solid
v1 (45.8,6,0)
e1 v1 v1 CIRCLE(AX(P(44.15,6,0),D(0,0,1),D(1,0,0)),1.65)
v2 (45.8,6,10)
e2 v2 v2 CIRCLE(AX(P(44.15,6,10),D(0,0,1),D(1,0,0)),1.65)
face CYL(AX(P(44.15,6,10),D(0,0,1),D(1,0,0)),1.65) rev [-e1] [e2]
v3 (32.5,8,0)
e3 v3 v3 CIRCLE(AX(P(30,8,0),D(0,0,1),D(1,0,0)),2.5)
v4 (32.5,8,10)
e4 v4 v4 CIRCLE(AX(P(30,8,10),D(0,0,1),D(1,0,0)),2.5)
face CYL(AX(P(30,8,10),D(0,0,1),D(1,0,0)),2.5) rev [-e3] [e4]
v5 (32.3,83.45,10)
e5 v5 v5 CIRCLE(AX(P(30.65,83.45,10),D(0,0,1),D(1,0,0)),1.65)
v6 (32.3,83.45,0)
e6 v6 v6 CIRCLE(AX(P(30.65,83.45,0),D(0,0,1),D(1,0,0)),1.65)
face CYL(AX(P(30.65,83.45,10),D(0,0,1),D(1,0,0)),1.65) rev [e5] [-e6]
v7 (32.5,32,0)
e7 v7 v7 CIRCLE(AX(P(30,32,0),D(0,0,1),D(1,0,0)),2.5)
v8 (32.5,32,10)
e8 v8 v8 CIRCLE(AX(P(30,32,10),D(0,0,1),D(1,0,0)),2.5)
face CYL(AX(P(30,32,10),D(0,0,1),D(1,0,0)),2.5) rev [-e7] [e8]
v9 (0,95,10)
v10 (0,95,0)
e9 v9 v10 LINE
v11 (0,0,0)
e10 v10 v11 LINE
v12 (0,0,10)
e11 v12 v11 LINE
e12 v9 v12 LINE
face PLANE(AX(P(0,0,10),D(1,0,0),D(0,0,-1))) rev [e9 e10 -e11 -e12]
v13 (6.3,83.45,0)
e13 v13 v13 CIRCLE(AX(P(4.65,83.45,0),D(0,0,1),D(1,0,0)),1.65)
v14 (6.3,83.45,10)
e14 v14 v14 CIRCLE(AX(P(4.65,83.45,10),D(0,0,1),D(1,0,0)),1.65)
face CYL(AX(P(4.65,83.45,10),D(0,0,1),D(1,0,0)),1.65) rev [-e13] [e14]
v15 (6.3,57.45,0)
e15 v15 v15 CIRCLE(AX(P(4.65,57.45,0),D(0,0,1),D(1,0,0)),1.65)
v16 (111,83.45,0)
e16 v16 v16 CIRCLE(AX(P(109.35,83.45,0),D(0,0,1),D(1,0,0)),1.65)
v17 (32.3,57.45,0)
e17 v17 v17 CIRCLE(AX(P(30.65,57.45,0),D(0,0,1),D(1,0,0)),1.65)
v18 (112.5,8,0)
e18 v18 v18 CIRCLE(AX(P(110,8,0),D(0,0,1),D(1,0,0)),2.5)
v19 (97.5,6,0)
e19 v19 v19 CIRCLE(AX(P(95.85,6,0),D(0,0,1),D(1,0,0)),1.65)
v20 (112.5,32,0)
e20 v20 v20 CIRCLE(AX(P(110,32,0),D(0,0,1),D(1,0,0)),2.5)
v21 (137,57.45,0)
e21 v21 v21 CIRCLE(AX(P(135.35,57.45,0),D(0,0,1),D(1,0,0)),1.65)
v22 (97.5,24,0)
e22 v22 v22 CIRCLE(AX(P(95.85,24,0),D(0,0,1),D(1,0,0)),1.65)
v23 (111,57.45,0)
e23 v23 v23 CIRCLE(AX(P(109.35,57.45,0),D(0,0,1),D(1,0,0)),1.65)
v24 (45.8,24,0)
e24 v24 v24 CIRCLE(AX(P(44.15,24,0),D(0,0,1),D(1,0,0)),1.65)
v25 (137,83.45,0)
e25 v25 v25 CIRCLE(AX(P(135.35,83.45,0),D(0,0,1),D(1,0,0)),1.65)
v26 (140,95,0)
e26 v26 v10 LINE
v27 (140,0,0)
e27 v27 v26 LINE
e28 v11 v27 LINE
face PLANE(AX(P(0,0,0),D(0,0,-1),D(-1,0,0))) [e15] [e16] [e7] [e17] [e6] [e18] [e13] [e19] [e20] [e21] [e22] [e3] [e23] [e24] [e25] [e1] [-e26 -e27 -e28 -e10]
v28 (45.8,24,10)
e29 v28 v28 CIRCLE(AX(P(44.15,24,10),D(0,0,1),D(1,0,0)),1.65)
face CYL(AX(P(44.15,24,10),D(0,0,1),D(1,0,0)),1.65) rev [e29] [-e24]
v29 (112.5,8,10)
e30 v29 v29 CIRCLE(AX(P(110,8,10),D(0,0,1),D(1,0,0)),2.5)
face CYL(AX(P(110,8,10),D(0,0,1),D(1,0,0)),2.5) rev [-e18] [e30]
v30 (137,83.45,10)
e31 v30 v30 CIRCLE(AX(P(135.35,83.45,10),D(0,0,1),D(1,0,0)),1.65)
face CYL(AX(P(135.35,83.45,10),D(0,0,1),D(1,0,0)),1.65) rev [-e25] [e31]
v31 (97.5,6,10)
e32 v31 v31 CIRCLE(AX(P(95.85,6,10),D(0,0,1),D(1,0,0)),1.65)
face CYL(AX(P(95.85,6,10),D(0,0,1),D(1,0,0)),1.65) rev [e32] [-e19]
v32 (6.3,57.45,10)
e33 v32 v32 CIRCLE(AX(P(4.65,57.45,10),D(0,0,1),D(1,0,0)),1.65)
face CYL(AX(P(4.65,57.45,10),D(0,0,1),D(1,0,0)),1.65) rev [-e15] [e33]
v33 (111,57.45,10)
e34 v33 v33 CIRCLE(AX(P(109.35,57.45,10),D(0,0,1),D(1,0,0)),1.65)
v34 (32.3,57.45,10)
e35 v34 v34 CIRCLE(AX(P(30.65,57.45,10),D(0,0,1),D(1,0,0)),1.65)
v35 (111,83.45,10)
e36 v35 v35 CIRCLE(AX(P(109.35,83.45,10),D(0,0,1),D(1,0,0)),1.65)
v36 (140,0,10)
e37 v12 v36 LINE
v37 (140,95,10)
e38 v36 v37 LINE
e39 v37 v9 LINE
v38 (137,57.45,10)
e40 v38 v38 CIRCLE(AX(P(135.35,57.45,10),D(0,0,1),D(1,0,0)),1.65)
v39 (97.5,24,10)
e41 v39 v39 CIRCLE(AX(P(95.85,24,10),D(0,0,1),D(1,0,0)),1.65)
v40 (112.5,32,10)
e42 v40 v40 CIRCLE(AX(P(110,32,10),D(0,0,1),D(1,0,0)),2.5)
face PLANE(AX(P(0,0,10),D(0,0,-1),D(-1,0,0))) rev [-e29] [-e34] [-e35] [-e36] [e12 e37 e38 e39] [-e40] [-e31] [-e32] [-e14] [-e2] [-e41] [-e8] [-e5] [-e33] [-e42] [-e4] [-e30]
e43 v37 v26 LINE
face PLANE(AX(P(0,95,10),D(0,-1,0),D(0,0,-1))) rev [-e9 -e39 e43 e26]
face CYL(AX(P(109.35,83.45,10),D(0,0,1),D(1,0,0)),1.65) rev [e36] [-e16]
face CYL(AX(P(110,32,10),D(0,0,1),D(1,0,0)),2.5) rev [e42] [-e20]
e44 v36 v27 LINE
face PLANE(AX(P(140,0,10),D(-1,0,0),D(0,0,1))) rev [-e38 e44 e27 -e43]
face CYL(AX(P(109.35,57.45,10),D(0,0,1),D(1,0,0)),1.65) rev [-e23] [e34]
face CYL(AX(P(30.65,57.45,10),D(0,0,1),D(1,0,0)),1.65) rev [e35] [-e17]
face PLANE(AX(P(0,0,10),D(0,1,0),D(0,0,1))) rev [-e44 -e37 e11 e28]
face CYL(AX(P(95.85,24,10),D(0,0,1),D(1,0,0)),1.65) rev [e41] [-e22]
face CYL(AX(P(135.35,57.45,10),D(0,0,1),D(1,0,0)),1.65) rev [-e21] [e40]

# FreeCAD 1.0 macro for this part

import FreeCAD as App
import Part
import Sketcher

V = App.Vector
Q = App.Units.Quantity


def add_polygon(sketch, points):
    """Adds a closed chain of lines whose ends are joined by coincident constraints."""
    first, n = sketch.GeometryCount, len(points)
    for a, b in zip(points, points[1:] + points[:1]):
        sketch.addGeometry(Part.LineSegment(App.Vector(*a, 0), App.Vector(*b, 0)), False)
    for i in range(n):
        sketch.addConstraint(Sketcher.Constraint("Coincident", first + i, 2, first + (i + 1) % n, 1))

doc = App.newDocument("Part")
body = doc.addObject("PartDesign::Body", "Body")

# Sketch on XY plane
sketch1 = body.newObject("Sketcher::SketchObject", "Sketch")
sketch1.AttachmentSupport = (doc.getObject("XY_Plane"), [""])
sketch1.MapMode = "FlatFace"
add_polygon(sketch1, [(0, 95), (0, 0), (140, 0), (140, 95)])  # lines 0-3
sketch1.addConstraint([
    Sketcher.Constraint("Vertical", 0),
    Sketcher.Constraint("Horizontal", 1),
    Sketcher.Constraint("Vertical", 2),
    Sketcher.Constraint("Horizontal", 3),
    Sketcher.Constraint("Coincident", 0, 2, -1, 1),
    Sketcher.Constraint("DistanceX", 1, 1, 1, 2, Q("140 mm")),
    Sketcher.Constraint("DistanceY", 0, 2, 0, 1, Q("95 mm")),
])
pad1 = body.newObject("PartDesign::Pad", "Pad")
pad1.Profile = sketch1
pad1.Length = 10

# Sketch on XY plane
sketch2 = body.newObject("Sketcher::SketchObject", "Sketch001")
sketch2.AttachmentSupport = (doc.getObject("XY_Plane"), [""])
sketch2.MapMode = "FlatFace"
sketch2.AttachmentOffset = App.Placement(V(0, 0, 10), App.Rotation())
sketch2.addGeometry([
    Part.Circle(V(4.7, 83.5, 0), V(0, 0, 1), 1.6),  # 0
    Part.Circle(V(4.7, 57.5, 0), V(0, 0, 1), 1.6),  # 1
    Part.Circle(V(30.6, 57.5, 0), V(0, 0, 1), 1.6),  # 2
    Part.Circle(V(30.6, 83.5, 0), V(0, 0, 1), 1.6),  # 3
    Part.Circle(V(109.3, 83.5, 0), V(0, 0, 1), 1.6),  # 4
    Part.Circle(V(135.3, 83.5, 0), V(0, 0, 1), 1.6),  # 5
    Part.Circle(V(135.3, 57.5, 0), V(0, 0, 1), 1.6),  # 6
    Part.Circle(V(109.3, 57.5, 0), V(0, 0, 1), 1.6),  # 7
    Part.Circle(V(44.1, 24, 0), V(0, 0, 1), 1.6),  # 8
    Part.Circle(V(44.1, 6, 0), V(0, 0, 1), 1.6),  # 9
    Part.Circle(V(95.8, 24, 0), V(0, 0, 1), 1.6),  # 10
    Part.Circle(V(95.8, 6, 0), V(0, 0, 1), 1.6),  # 11
], False)
sketch2.addConstraint([
    Sketcher.Constraint("Equal", 0, 1),
    Sketcher.Constraint("Equal", 1, 2),
    Sketcher.Constraint("Equal", 2, 3),
    Sketcher.Constraint("Equal", 3, 4),
    Sketcher.Constraint("Equal", 4, 5),
    Sketcher.Constraint("Equal", 5, 6),
    Sketcher.Constraint("Equal", 6, 7),
    Sketcher.Constraint("Equal", 7, 8),
    Sketcher.Constraint("Equal", 8, 9),
    Sketcher.Constraint("Equal", 9, 10),
    Sketcher.Constraint("Equal", 10, 11),
    Sketcher.Constraint("Horizontal", 1, 3, 2, 3),
    Sketcher.Constraint("Horizontal", 0, 3, 3, 3),
    Sketcher.Constraint("Horizontal", 3, 3, 4, 3),
    Sketcher.Constraint("Horizontal", 4, 3, 5, 3),
    Sketcher.Constraint("Horizontal", 2, 3, 6, 3),
    Sketcher.Constraint("Horizontal", 6, 3, 7, 3),
    Sketcher.Constraint("Horizontal", 8, 3, 10, 3),
    Sketcher.Constraint("Horizontal", 9, 3, 11, 3),
    Sketcher.Constraint("Vertical", 0, 3, 1, 3),
    Sketcher.Constraint("Vertical", 2, 3, 3, 3),
    Sketcher.Constraint("Vertical", 5, 3, 6, 3),
    Sketcher.Constraint("Vertical", 4, 3, 7, 3),
    Sketcher.Constraint("Vertical", 8, 3, 9, 3),
    Sketcher.Constraint("Vertical", 10, 3, 11, 3),
    Sketcher.Constraint("Diameter", 0, Q("3.3 mm")),
    Sketcher.Constraint("DistanceY", -1, 1, 8, 3, Q("24 mm")),
    Sketcher.Constraint("DistanceY", -1, 1, 9, 3, Q("6 mm")),
    Sketcher.Constraint("DistanceY", 1, 3, 0, 3, Q("26 mm")),
    Sketcher.Constraint("DistanceX", 1, 3, 2, 3, Q("26 mm")),
    Sketcher.Constraint("DistanceX", 4, 3, 5, 3, Q("26 mm")),
    Sketcher.Constraint("DistanceX", 3, 3, 4, 3, Q("78.7 mm")),
    Sketcher.Constraint("DistanceX", 2, 3, 8, 3, Q("13.5 mm")),
    Sketcher.Constraint("DistanceX", 10, 3, 7, 3, Q("13.5 mm")),
    Sketcher.Constraint("DistanceX", -1, 1, 0, 3, Q("4.65 mm")),
    Sketcher.Constraint("DistanceY", -1, 1, 0, 3, Q("83.45 mm")),
])
doc.recompute()
hole = body.newObject("PartDesign::Hole", "Hole")
hole.Profile = sketch2
hole.ThreadType = "None"
hole.Diameter = 3.3
hole.DepthType = "ThroughAll"

# Sketch on XY plane
sketch3 = body.newObject("Sketcher::SketchObject", "Sketch002")
sketch3.AttachmentSupport = (doc.getObject("XY_Plane"), [""])
sketch3.MapMode = "FlatFace"
sketch3.AttachmentOffset = App.Placement(V(0, 0, 10), App.Rotation())
sketch3.addGeometry([
    Part.Circle(V(30, 32, 0), V(0, 0, 1), 2.5),
    Part.Circle(V(30, 8, 0), V(0, 0, 1), 2.5),
    Part.Circle(V(110, 32, 0), V(0, 0, 1), 2.5),
    Part.Circle(V(110, 8, 0), V(0, 0, 1), 2.5),
], False)
sketch3.addConstraint([
    Sketcher.Constraint("Equal", 0, 1),
    Sketcher.Constraint("Equal", 1, 2),
    Sketcher.Constraint("Equal", 2, 3),
    Sketcher.Constraint("Horizontal", 0, 3, 2, 3),
    Sketcher.Constraint("Horizontal", 1, 3, 3, 3),
    Sketcher.Constraint("Vertical", 0, 3, 1, 3),
    Sketcher.Constraint("Vertical", 2, 3, 3, 3),
    Sketcher.Constraint("Diameter", 0, Q("5 mm")),
    Sketcher.Constraint("DistanceX", -1, 1, 0, 3, Q("30 mm")),
    Sketcher.Constraint("DistanceY", -1, 1, 0, 3, Q("32 mm")),
    Sketcher.Constraint("DistanceY", -1, 1, 1, 3, Q("8 mm")),
    Sketcher.Constraint("DistanceX", -1, 1, 2, 3, Q("110 mm")),
])
doc.recompute()
hole2 = body.newObject("PartDesign::Hole", "Hole001")
hole2.Profile = sketch3
hole2.ThreadType = "None"
hole2.Diameter = 5
hole2.DepthType = "ThroughAll"

doc.recompute()
